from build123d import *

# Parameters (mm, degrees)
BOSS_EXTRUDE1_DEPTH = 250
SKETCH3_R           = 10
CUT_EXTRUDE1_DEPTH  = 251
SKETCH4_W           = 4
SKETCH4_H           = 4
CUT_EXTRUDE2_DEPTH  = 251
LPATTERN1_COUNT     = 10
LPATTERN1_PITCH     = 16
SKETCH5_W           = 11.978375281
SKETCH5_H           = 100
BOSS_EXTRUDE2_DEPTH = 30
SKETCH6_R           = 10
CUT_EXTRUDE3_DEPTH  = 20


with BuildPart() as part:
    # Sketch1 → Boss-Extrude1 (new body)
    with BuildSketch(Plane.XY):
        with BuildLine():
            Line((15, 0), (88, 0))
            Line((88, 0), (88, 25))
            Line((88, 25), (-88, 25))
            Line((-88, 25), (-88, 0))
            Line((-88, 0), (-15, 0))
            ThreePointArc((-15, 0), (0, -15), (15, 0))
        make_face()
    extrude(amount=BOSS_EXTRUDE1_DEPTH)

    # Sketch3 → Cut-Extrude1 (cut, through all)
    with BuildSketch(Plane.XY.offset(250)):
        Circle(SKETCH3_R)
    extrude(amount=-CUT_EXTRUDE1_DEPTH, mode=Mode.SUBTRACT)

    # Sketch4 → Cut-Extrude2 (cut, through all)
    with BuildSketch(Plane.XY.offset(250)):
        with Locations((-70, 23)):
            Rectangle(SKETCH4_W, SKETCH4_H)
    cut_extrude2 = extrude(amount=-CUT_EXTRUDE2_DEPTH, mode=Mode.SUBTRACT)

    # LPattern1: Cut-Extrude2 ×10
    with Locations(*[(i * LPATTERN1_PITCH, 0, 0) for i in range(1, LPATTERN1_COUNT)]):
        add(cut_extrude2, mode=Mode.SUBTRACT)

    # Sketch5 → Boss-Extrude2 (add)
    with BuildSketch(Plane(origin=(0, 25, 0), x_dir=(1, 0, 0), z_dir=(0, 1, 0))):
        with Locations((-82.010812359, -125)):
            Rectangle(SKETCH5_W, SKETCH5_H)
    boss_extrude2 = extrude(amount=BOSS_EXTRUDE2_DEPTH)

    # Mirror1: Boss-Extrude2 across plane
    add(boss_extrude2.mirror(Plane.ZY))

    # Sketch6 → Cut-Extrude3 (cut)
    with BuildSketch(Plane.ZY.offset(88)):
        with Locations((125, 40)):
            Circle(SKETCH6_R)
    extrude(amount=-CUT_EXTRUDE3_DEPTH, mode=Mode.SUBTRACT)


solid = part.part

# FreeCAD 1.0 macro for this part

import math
import FreeCAD as App
import Part
import Sketcher

V = App.Vector
Q = App.Units.Quantity


def add_polygon(sketch, points):
    """Adds a closed chain of lines whose ends are joined by coincident constraints."""
    first, n = sketch.GeometryCount, len(points)
    for a, b in zip(points, points[1:] + points[:1]):
        sketch.addGeometry(Part.LineSegment(App.Vector(*a, 0), App.Vector(*b, 0)), False)
    for i in range(n):
        sketch.addConstraint(Sketcher.Constraint("Coincident", first + i, 2, first + (i + 1) % n, 1))

doc = App.newDocument("Part")
params = doc.addObject("Spreadsheet::Sheet", "Params")
for row, (alias, value) in enumerate([
    ("sketch1_radius", "15 mm"),
    ("sketch1_width", "73 mm"),
    ("sketch1_height", "25 mm"),
    ("pad1_length", "250 mm"),
    ("sketch2_diameter", "20 mm"),
    ("sketch3_width", "4 mm"),
    ("linearpattern_pitch", "16 mm"),
    ("sketch4_height", "100 mm"),
    ("pad2_length", "30 mm"),
    ("sketch5_diameter", "20 mm"),
    ("pocket3_length", "20 mm"),
], start=1):
    params.set(f"A{row}", alias)
    params.set(f"B{row}", "=" + value)
    params.setAlias(f"B{row}", alias)

body = doc.addObject("PartDesign::Body", "Body")

sketch1 = body.newObject("Sketcher::SketchObject", "Sketch")
sketch1.AttachmentSupport = (doc.getObject("XY_Plane"), [""])
sketch1.MapMode = "FlatFace"
sketch1.addGeometry([
    Part.LineSegment(V(15, 0, 0), V(88, 0, 0)),
    Part.LineSegment(V(88, 0, 0), V(88, 25, 0)),
    Part.LineSegment(V(88, 25, 0), V(-88, 25, 0)),
    Part.LineSegment(V(-88, 25, 0), V(-88, 0, 0)),
    Part.LineSegment(V(-88, 0, 0), V(-15, 0, 0)),
    Part.ArcOfCircle(Part.Circle(V(0, 0, 0), V(0, 0, 1), 15), math.radians(180), math.radians(360)),
], False)
sketch1.addConstraint([
    Sketcher.Constraint("Coincident", 0, 2, 1, 1),
    Sketcher.Constraint("Coincident", 1, 2, 2, 1),
    Sketcher.Constraint("Coincident", 2, 2, 3, 1),
    Sketcher.Constraint("Coincident", 3, 2, 4, 1),
    Sketcher.Constraint("Coincident", 4, 2, 5, 1),
    Sketcher.Constraint("Coincident", 5, 2, 0, 1),
    Sketcher.Constraint("Horizontal", 0),
    Sketcher.Constraint("Vertical", 1),
    Sketcher.Constraint("Horizontal", 2),
    Sketcher.Constraint("Vertical", 3),
    Sketcher.Constraint("Horizontal", 4),
    Sketcher.Constraint("Coincident", 5, 3, -1, 1),
    Sketcher.Constraint("Symmetric", 0, 2, 3, 2, -1, 1),
    Sketcher.Constraint("PointOnObject", 0, 2, -1),
    Sketcher.Constraint("Radius", 5, Q("15 mm")),
    Sketcher.Constraint("DistanceX", 0, 1, 0, 2, Q("73 mm")),
    Sketcher.Constraint("DistanceY", 1, 1, 1, 2, Q("25 mm")),
])
sketch1.setExpression("Constraints[14]", "Params.sketch1_radius")
sketch1.setExpression("Constraints[15]", "Params.sketch1_width")
sketch1.setExpression("Constraints[16]", "Params.sketch1_height")
pad1 = body.newObject("PartDesign::Pad", "Pad")
pad1.Profile = sketch1
pad1.setExpression("Length", "Params.pad1_length")

sketch2 = body.newObject("Sketcher::SketchObject", "Sketch001")
sketch2.AttachmentSupport = (doc.getObject("XY_Plane"), [""])
sketch2.MapMode = "FlatFace"
sketch2.AttachmentOffset = App.Placement(V(0, 0, 250), App.Rotation())
sketch2.addGeometry(Part.Circle(V(0, 0, 0), V(0, 0, 1), 10), False)
sketch2.addConstraint([
    Sketcher.Constraint("Coincident", 0, 3, -1, 1),
    Sketcher.Constraint("Diameter", 0, Q("20 mm")),
])
sketch2.setExpression("Constraints[1]", "Params.sketch2_diameter")
pocket1 = body.newObject("PartDesign::Pocket", "Pocket")
pocket1.Profile = sketch2
pocket1.Type = "ThroughAll"

sketch3 = body.newObject("Sketcher::SketchObject", "Sketch002")
sketch3.AttachmentSupport = (doc.getObject("XY_Plane"), [""])
sketch3.MapMode = "FlatFace"
sketch3.AttachmentOffset = App.Placement(V(0, 0, 250), App.Rotation())
add_polygon(sketch3, [(-72, 25), (-72, 21), (-68, 21), (-68, 25)])
sketch3.addConstraint([
    Sketcher.Constraint("Vertical", 0),
    Sketcher.Constraint("Horizontal", 1),
    Sketcher.Constraint("Vertical", 2),
    Sketcher.Constraint("Horizontal", 3),
    Sketcher.Constraint("Equal", 3, 0),
    Sketcher.Constraint("DistanceX", 1, 1, 1, 2, Q("4 mm")),
    Sketcher.Constraint("DistanceX", 0, 2, -1, 1, Q("72 mm")),
    Sketcher.Constraint("DistanceY", -1, 1, 0, 2, Q("21 mm")),
])
sketch3.setExpression("Constraints[9]", "Params.sketch3_width")
pocket2 = body.newObject("PartDesign::Pocket", "Pocket001")
pocket2.Profile = sketch3
pocket2.Type = "ThroughAll"
doc.recompute()

linearpattern = body.newObject("PartDesign::LinearPattern", "LinearPattern")
linearpattern.Originals = [pocket2]
linearpattern.Direction = (doc.getObject("X_Axis"), [""])
linearpattern.Mode = "offset"
linearpattern.setExpression("Offset", "Params.linearpattern_pitch")
linearpattern.Occurrences = 10
body.Tip = linearpattern

sketch4 = body.newObject("Sketcher::SketchObject", "Sketch003")
sketch4.AttachmentSupport = (doc.getObject("XZ_Plane"), [""])
sketch4.MapMode = "FlatFace"
sketch4.AttachmentOffset = App.Placement(V(0, 0, -25), App.Rotation())
add_polygon(sketch4, [(-88, 75), (-88, 175), (-76.021625, 175), (-76.021625, 75)])
sketch4.addConstraint([
    Sketcher.Constraint("Vertical", 0),
    Sketcher.Constraint("Horizontal", 1),
    Sketcher.Constraint("Vertical", 2),
    Sketcher.Constraint("Horizontal", 3),
    Sketcher.Constraint("DistanceY", 0, 1, 0, 2, Q("100 mm")),
    Sketcher.Constraint("DistanceX", 0, 2, -1, 1, Q("88 mm")),
    Sketcher.Constraint("DistanceY", -1, 1, 0, 2, Q("175 mm")),
    Sketcher.Constraint("DistanceX", 1, 1, 1, 2, Q("11.978375 mm")),
])
sketch4.setExpression("Constraints[8]", "Params.sketch4_height")
pad2 = body.newObject("PartDesign::Pad", "Pad001")
pad2.Profile = sketch4
pad2.setExpression("Length", "Params.pad2_length")
pad2.Reversed = True
doc.recompute()

mirrored = body.newObject("PartDesign::Mirrored", "Mirrored")
mirrored.Originals = [pad2]
mirrored.MirrorPlane = (doc.getObject("YZ_Plane"), [""])
body.Tip = mirrored

sketch5 = body.newObject("Sketcher::SketchObject", "Sketch004")
sketch5.AttachmentSupport = (doc.getObject("YZ_Plane"), [""])
sketch5.MapMode = "FlatFace"
sketch5.AttachmentOffset = App.Placement(V(0, 0, -88), App.Rotation())
sketch5.addGeometry(Part.Circle(V(40, 125, 0), V(0, 0, 1), 10), False)
sketch5.addConstraint([
    Sketcher.Constraint("Diameter", 0, Q("20 mm")),
    Sketcher.Constraint("DistanceX", -1, 1, 0, 3, Q("40 mm")),
    Sketcher.Constraint("DistanceY", -1, 1, 0, 3, Q("125 mm")),
])
sketch5.setExpression("Constraints[0]", "Params.sketch5_diameter")
pocket3 = body.newObject("PartDesign::Pocket", "Pocket002")
pocket3.Profile = sketch5
pocket3.setExpression("Length", "Params.pocket3_length")
pocket3.Reversed = True

doc.recompute()
